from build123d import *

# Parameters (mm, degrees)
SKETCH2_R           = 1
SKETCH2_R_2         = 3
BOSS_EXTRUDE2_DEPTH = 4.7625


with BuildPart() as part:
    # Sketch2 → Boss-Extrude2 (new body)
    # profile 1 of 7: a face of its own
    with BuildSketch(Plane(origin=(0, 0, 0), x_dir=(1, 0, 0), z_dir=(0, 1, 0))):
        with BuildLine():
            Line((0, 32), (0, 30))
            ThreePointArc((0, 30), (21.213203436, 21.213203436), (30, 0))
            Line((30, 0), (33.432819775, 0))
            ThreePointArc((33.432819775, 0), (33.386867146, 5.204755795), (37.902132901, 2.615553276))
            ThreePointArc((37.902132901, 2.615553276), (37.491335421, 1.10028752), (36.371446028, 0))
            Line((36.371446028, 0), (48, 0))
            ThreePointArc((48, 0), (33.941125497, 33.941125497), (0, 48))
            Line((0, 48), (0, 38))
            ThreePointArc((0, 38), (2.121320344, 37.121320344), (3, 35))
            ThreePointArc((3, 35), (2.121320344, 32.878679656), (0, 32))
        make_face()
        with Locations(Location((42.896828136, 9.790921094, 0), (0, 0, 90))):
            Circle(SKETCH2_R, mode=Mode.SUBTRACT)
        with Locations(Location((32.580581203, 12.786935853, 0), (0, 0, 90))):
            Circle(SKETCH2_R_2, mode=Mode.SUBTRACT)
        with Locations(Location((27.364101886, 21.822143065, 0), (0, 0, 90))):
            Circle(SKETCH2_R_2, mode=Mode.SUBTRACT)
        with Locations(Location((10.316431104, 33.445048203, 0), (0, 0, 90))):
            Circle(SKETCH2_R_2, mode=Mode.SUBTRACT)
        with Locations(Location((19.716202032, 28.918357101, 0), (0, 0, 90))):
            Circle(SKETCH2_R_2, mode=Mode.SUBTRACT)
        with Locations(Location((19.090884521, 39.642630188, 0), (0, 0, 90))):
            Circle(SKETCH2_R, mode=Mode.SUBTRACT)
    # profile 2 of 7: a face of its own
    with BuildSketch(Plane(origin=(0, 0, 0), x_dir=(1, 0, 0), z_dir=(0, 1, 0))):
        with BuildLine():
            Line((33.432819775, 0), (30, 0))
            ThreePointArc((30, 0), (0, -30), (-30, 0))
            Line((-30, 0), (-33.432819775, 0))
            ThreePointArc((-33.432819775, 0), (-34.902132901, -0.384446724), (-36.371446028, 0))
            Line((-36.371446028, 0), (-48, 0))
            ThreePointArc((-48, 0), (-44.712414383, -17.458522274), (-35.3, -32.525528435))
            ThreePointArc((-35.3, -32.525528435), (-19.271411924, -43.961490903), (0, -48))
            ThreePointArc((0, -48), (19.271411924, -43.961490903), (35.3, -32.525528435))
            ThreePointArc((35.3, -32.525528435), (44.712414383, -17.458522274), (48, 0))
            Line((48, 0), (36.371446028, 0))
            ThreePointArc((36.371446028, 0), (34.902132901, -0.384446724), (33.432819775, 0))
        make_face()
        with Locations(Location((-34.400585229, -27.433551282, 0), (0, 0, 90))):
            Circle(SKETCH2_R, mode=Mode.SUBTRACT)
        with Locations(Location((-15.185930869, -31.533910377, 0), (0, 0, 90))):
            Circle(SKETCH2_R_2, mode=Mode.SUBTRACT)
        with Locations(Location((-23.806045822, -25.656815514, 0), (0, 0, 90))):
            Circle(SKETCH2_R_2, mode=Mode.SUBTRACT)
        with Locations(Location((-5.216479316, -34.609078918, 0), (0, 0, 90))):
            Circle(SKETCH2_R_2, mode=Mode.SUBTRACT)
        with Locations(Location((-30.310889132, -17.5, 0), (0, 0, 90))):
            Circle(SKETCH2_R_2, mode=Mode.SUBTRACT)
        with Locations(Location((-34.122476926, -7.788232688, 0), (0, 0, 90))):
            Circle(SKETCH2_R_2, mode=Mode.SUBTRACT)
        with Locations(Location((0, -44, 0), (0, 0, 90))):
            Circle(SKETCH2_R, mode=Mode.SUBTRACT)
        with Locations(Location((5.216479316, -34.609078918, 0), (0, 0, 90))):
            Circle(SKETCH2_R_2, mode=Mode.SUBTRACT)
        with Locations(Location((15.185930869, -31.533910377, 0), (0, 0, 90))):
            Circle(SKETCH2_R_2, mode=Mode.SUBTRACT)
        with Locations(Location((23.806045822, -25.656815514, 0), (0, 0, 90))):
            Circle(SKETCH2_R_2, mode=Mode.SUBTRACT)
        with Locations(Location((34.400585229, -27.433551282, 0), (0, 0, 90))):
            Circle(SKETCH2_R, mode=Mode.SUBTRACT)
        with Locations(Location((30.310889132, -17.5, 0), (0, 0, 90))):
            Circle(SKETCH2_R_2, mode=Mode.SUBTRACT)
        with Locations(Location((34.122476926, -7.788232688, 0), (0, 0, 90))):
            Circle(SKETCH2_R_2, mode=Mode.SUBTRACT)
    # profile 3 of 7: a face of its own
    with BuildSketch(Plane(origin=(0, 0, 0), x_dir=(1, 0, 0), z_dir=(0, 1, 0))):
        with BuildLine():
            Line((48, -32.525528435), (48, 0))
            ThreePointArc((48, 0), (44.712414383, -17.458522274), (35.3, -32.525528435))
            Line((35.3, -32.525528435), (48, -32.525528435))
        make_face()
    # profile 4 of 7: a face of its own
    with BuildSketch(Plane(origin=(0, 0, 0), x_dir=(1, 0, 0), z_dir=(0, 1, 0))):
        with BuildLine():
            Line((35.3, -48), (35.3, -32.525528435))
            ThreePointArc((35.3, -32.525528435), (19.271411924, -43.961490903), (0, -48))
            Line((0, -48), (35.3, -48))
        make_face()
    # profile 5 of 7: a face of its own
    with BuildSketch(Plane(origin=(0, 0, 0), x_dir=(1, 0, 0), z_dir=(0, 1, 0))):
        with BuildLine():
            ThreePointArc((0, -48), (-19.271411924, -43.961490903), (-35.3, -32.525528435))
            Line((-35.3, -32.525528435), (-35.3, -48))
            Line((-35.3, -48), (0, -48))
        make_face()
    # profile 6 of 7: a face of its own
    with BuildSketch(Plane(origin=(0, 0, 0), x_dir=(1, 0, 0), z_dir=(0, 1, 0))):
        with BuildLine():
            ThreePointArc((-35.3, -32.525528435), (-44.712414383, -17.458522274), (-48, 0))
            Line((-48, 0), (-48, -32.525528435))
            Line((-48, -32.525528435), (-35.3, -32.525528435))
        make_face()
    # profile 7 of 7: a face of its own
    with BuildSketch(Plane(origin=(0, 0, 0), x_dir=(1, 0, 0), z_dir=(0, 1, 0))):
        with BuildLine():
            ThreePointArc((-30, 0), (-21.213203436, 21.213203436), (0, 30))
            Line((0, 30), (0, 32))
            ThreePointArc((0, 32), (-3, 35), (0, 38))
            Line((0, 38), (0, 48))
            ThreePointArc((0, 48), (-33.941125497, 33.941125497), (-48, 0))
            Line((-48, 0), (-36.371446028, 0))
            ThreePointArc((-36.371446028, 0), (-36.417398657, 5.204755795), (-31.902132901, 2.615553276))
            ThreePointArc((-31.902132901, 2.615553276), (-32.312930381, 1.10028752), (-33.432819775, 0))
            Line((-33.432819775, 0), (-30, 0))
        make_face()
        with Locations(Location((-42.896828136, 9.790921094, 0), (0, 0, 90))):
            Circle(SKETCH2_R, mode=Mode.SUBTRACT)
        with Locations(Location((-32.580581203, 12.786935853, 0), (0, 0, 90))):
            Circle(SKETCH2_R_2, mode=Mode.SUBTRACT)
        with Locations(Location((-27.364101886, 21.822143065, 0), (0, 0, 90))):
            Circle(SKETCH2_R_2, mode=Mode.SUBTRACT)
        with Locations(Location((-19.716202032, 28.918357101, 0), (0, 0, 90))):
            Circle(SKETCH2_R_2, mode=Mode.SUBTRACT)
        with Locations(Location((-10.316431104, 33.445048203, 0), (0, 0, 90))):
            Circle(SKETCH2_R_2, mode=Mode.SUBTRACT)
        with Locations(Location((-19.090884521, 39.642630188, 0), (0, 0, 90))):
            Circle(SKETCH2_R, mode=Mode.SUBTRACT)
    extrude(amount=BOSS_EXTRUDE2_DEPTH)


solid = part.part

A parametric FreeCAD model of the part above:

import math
import FreeCAD as App
import Part
import Sketcher

V = App.Vector

doc = App.newDocument("Part")
params = doc.addObject("Spreadsheet::Sheet", "Params")
for row, (alias, value) in enumerate([
    ("sketch1_diameter", "6 mm"),
    ("sketch1_diameter2", "2 mm"),
    ("sketch1_radius", "48 mm"),
    ("sketch1_radius2", "30 mm"),
    ("sketch1_width", "12.7 mm"),
    ("pad1_length", "4.7625 mm"),
], start=1):
    params.set(f"A{row}", alias)
    params.set(f"B{row}", "=" + value)
    params.setAlias(f"B{row}", alias)

body = doc.addObject("PartDesign::Body", "Body")

sketch1 = body.newObject("Sketcher::SketchObject", "Sketch")
sketch1.AttachmentSupport = (doc.getObject("XZ_Plane"), [""])
sketch1.MapMode = "FlatFace"
sketch1.addGeometry([
    Part.ArcOfCircle(Part.Circle(V(0, 0, 0), V(0, 0, 1), 48), math.radians(-90), math.radians(0)),
    Part.ArcOfCircle(Part.Circle(V(0, 0, 0), V(0, 0, 1), 48), math.radians(180), math.radians(270)),
    Part.LineSegment(V(-48, 0, 0), V(-48, 32.525528, 0)),
    Part.LineSegment(V(-48, 32.525528, 0), V(-35.3, 32.525528, 0)),
    Part.LineSegment(V(-35.3, 32.525528, 0), V(-35.3, 48, 0)),
    Part.LineSegment(V(-35.3, 48, 0), V(35.3, 48, 0)),
    Part.LineSegment(V(35.3, 48, 0), V(35.3, 32.525528, 0)),
    Part.LineSegment(V(35.3, 32.525528, 0), V(48, 32.525528, 0)),
    Part.LineSegment(V(48, 32.525528, 0), V(48, 0, 0)),
    Part.ArcOfCircle(Part.Circle(V(0, -35, 0), V(0, 0, 1), 3), math.radians(0), math.radians(90)),
    Part.ArcOfCircle(Part.Circle(V(0, -35, 0), V(0, 0, 1), 3), math.radians(90), math.radians(270)),
    Part.ArcOfCircle(Part.Circle(V(0, -35, 0), V(0, 0, 1), 3), math.radians(-90), math.radians(0)),
    Part.ArcOfCircle(Part.Circle(V(0, 0, 0), V(0, 0, 1), 30), math.radians(-90), math.radians(0)),
    Part.ArcOfCircle(Part.Circle(V(0, 0, 0), V(0, 0, 1), 30), math.radians(0), math.radians(180)),
    Part.ArcOfCircle(Part.Circle(V(0, 0, 0), V(0, 0, 1), 30), math.radians(180), math.radians(270)),
    Part.ArcOfCircle(Part.Circle(V(34.902133, -2.615553, 0), V(0, 0, 1), 3), math.radians(119.325534), math.radians(360)),
    Part.ArcOfCircle(Part.Circle(V(34.902133, -2.615553, 0), V(0, 0, 1), 3), math.radians(0), math.radians(60.674466)),
    Part.ArcOfCircle(Part.Circle(V(34.902133, -2.615553, 0), V(0, 0, 1), 3), math.radians(60.674466), math.radians(119.325534)),
    Part.Circle(V(32.580581, -12.786936, 0), V(0, 0, 1), 3),
    Part.Circle(V(42.896828, -9.790921, 0), V(0, 0, 1), 1),
    Part.Circle(V(27.364102, -21.822143, 0), V(0, 0, 1), 3),
    Part.Circle(V(19.716202, -28.918357, 0), V(0, 0, 1), 3),
    Part.Circle(V(10.316431, -33.445048, 0), V(0, 0, 1), 3),
    Part.Circle(V(19.090885, -39.64263, 0), V(0, 0, 1), 1),
    Part.Circle(V(-10.316431, -33.445048, 0), V(0, 0, 1), 3),
    Part.ArcOfCircle(Part.Circle(V(-34.902133, -2.615553, 0), V(0, 0, 1), 3), math.radians(0), math.radians(60.674466)),
    Part.ArcOfCircle(Part.Circle(V(-34.902133, -2.615553, 0), V(0, 0, 1), 3), math.radians(60.674466), math.radians(119.325534)),
    Part.ArcOfCircle(Part.Circle(V(-34.902133, -2.615553, 0), V(0, 0, 1), 3), math.radians(119.325534), math.radians(360)),
    Part.Circle(V(-19.090885, -39.64263, 0), V(0, 0, 1), 1),
    Part.Circle(V(-42.896828, -9.790921, 0), V(0, 0, 1), 1),
    Part.Circle(V(-32.580581, -12.786936, 0), V(0, 0, 1), 3),
    Part.Circle(V(-27.364102, -21.822143, 0), V(0, 0, 1), 3),
    Part.Circle(V(-19.716202, -28.918357, 0), V(0, 0, 1), 3),
    Part.Circle(V(34.122477, 7.788233, 0), V(0, 0, 1), 3),
    Part.Circle(V(30.310889, 17.5, 0), V(0, 0, 1), 3),
    Part.Circle(V(-34.122477, 7.788233, 0), V(0, 0, 1), 3),
    Part.Circle(V(-30.310889, 17.5, 0), V(0, 0, 1), 3),
    Part.Circle(V(-34.400585, 27.433551, 0), V(0, 0, 1), 1),
    Part.Circle(V(-23.806046, 25.656816, 0), V(0, 0, 1), 3),
    Part.Circle(V(-15.185931, 31.53391, 0), V(0, 0, 1), 3),
    Part.Circle(V(-5.216479, 34.609079, 0), V(0, 0, 1), 3),
    Part.Circle(V(0, 44, 0), V(0, 0, 1), 1),
    Part.Circle(V(5.216479, 34.609079, 0), V(0, 0, 1), 3),
    Part.Circle(V(15.185931, 31.53391, 0), V(0, 0, 1), 3),
    Part.Circle(V(23.806046, 25.656816, 0), V(0, 0, 1), 3),
    Part.Circle(V(34.400585, 27.433551, 0), V(0, 0, 1), 1),
], False)
sketch1.addConstraint([
    Sketcher.Constraint("Tangent", 0, 1, 1, 2),
    Sketcher.Constraint("Tangent", 1, 1, 2, 1),
    Sketcher.Constraint("Coincident", 2, 2, 3, 1),
    Sketcher.Constraint("Coincident", 3, 2, 4, 1),
    Sketcher.Constraint("Coincident", 4, 2, 5, 1),
    Sketcher.Constraint("Coincident", 5, 2, 6, 1),
    Sketcher.Constraint("Coincident", 6, 2, 7, 1),
    Sketcher.Constraint("Coincident", 7, 2, 8, 1),
    Sketcher.Constraint("Tangent", 8, 2, 0, 2),
    Sketcher.Constraint("Tangent", 9, 2, 10, 1),
    Sketcher.Constraint("Tangent", 10, 2, 11, 1),
    Sketcher.Constraint("Tangent", 11, 2, 9, 1),
    Sketcher.Constraint("Tangent", 12, 2, 13, 1),
    Sketcher.Constraint("Tangent", 13, 2, 14, 1),
    Sketcher.Constraint("Tangent", 14, 2, 12, 1),
    Sketcher.Constraint("Tangent", 15, 2, 16, 1),
    Sketcher.Constraint("Tangent", 16, 2, 17, 1),
    Sketcher.Constraint("Tangent", 17, 2, 15, 1),
    Sketcher.Constraint("Tangent", 25, 2, 26, 1),
    Sketcher.Constraint("Tangent", 26, 2, 27, 1),
    Sketcher.Constraint("Tangent", 27, 2, 25, 1),
    Sketcher.Constraint("Vertical", 2),
    Sketcher.Constraint("Horizontal", 3),
    Sketcher.Constraint("Vertical", 4),
    Sketcher.Constraint("Horizontal", 5),
    Sketcher.Constraint("Vertical", 6),
    Sketcher.Constraint("Horizontal", 7),
    Sketcher.Constraint("Vertical", 8),
    Sketcher.Constraint("Coincident", 0, 3, -1, 1),
    Sketcher.Constraint("Coincident", 12, 3, -1, 1),
    Sketcher.Constraint("Equal", 0, 1),
    Sketcher.Constraint("Equal", 11, 15),
    Sketcher.Constraint("Equal", 17, 18),
    Sketcher.Constraint("Equal", 18, 20),
    Sketcher.Constraint("Equal", 20, 21),
    Sketcher.Constraint("Equal", 21, 22),
    Sketcher.Constraint("Equal", 19, 23),
    Sketcher.Constraint("Equal", 22, 24),
    Sketcher.Constraint("Equal", 24, 25),
    Sketcher.Constraint("Equal", 23, 28),
    Sketcher.Constraint("Equal", 28, 29),
    Sketcher.Constraint("Equal", 27, 30),
    Sketcher.Constraint("Equal", 30, 31),
    Sketcher.Constraint("Equal", 31, 32),
    Sketcher.Constraint("Equal", 32, 33),
    Sketcher.Constraint("Equal", 33, 34),
    Sketcher.Constraint("Equal", 34, 35),
    Sketcher.Constraint("Equal", 35, 36),
    Sketcher.Constraint("Equal", 29, 37),
    Sketcher.Constraint("Equal", 36, 38),
    Sketcher.Constraint("Equal", 38, 39),
    Sketcher.Constraint("Equal", 39, 40),
    Sketcher.Constraint("Equal", 37, 41),
    Sketcher.Constraint("Equal", 40, 42),
    Sketcher.Constraint("Equal", 42, 43),
    Sketcher.Constraint("Equal", 43, 44),
    Sketcher.Constraint("Equal", 41, 45),
    Sketcher.Constraint("Symmetric", 17, 2, 25, 2, -1, 1),
    Sketcher.Constraint("Symmetric", 16, 2, 26, 2, -1, 1),
    Sketcher.Constraint("Symmetric", 22, 3, 24, 3, -2),
    Sketcher.Constraint("Symmetric", 15, 3, 25, 3, -2),
    Sketcher.Constraint("Symmetric", 23, 3, 28, 3, -2),
    Sketcher.Constraint("Symmetric", 19, 3, 29, 3, -2),
    Sketcher.Constraint("Symmetric", 18, 3, 30, 3, -2),
    Sketcher.Constraint("Symmetric", 20, 3, 31, 3, -2),
    Sketcher.Constraint("Symmetric", 21, 3, 32, 3, -2),
    Sketcher.Constraint("Symmetric", 33, 3, 35, 3, -2),
    Sketcher.Constraint("Symmetric", 34, 3, 36, 3, -2),
    Sketcher.Constraint("Symmetric", 40, 3, 42, 3, -2),
    Sketcher.Constraint("Symmetric", 39, 3, 43, 3, -2),
    Sketcher.Constraint("Symmetric", 38, 3, 44, 3, -2),
    Sketcher.Constraint("Symmetric", 37, 3, 45, 3, -2),
    Sketcher.Constraint("Symmetric", 3, 2, 6, 2, -2),
    Sketcher.Constraint("PointOnObject", 9, 3, -2),
    Sketcher.Constraint("PointOnObject", 41, 3, -2),
    Sketcher.Constraint("PointOnObject", 0, 1, -2),
    Sketcher.Constraint("PointOnObject", 9, 2, -2),
    Sketcher.Constraint("PointOnObject", 10, 2, -2),
    Sketcher.Constraint("PointOnObject", 12, 2, -1),
    Sketcher.Constraint("PointOnObject", 13, 2, -1),
    Sketcher.Constraint("PointOnObject", 14, 2, -2),
    Sketcher.Constraint("Horizontal", 10, 3, 11, 2),
    Sketcher.Constraint("Horizontal", 27, 3, 15, 2),
    Sketcher.Constraint("Horizontal", 15, 2, 27, 2),
    Sketcher.Constraint("Diameter", 18, 6.0),
    Sketcher.Constraint("Diameter", 19, 2.0),
    Sketcher.Constraint("Radius", 0, 48.0),
    Sketcher.Constraint("Radius", 12, 30.0),
    Sketcher.Constraint("DistanceX", 3, 1, 3, 2, 12.7),
    Sketcher.Constraint("DistanceY", 9, 3, -1, 1, 35.0),
    Sketcher.Constraint("DistanceY", -1, 1, 41, 3, 44.0),
    Sketcher.Constraint("DistanceY", -1, 1, 4, 2, 48.0),
    Sketcher.Constraint("DistanceY", -1, 1, 34, 3, 17.5),
    Sketcher.Constraint("DistanceY", 2, 1, 2, 2, 32.525528),
    Sketcher.Constraint("DistanceX", -1, 1, 20, 3, 27.364102),
    Sketcher.Constraint("DistanceX", 21, 3, 20, 3, 7.6479),
    Sketcher.Constraint("DistanceX", -1, 1, 18, 3, 32.580581),
    Sketcher.Constraint("DistanceX", -1, 1, 19, 3, 42.896828),
    Sketcher.Constraint("DistanceY", 19, 3, -1, 1, 9.790921),
    Sketcher.Constraint("DistanceX", -1, 1, 22, 3, 10.316431),
    Sketcher.Constraint("DistanceY", 22, 3, -1, 1, 33.445048),
    Sketcher.Constraint("DistanceY", 23, 3, -1, 1, 39.64263),
    Sketcher.Constraint("DistanceX", -1, 1, 34, 3, 30.310889),
    Sketcher.Constraint("DistanceY", -1, 1, 37, 3, 27.433551),
    Sketcher.Constraint("DistanceX", 39, 3, -1, 1, 15.185931),
    Sketcher.Constraint("DistanceY", -1, 1, 39, 3, 31.53391),
    Sketcher.Constraint("DistanceX", 40, 3, -1, 1, 5.216479),
    Sketcher.Constraint("DistanceY", -1, 1, 40, 3, 34.609079),
    Sketcher.Constraint("DistanceX", -1, 1, 17, 2, 33.43282),
    Sketcher.Constraint("DistanceX", 18, 3, 17, 3, 2.321552),
    Sketcher.Constraint("DistanceY", 20, 3, 19, 3, 12.031222),
    Sketcher.Constraint("DistanceY", 21, 3, 18, 3, 16.131421),
    Sketcher.Constraint("DistanceY", 22, 3, 21, 3, 4.526691),
    Sketcher.Constraint("DistanceX", 33, 3, 19, 3, 8.774351),
    Sketcher.Constraint("DistanceY", 18, 3, 33, 3, 20.575169),
    Sketcher.Constraint("DistanceX", 37, 3, 35, 3, 0.278108),
    Sketcher.Constraint("DistanceX", 37, 3, 38, 3, 10.594539),
    Sketcher.Constraint("DistanceY", 27, 3, 38, 3, 28.272369),
    Sketcher.Constraint("DistanceX", -1, 1, 23, 3, 19.090885),
])
sketch1.setExpression("Constraints[84]", "Params.sketch1_diameter")
sketch1.setExpression("Constraints[85]", "Params.sketch1_diameter2")
sketch1.setExpression("Constraints[86]", "Params.sketch1_radius")
sketch1.setExpression("Constraints[87]", "Params.sketch1_radius2")
sketch1.setExpression("Constraints[88]", "Params.sketch1_width")
pad1 = body.newObject("PartDesign::Pad", "Pad")
pad1.Profile = sketch1
pad1.setExpression("Length", "Params.pad1_length")
pad1.Reversed = True

doc.recompute()
